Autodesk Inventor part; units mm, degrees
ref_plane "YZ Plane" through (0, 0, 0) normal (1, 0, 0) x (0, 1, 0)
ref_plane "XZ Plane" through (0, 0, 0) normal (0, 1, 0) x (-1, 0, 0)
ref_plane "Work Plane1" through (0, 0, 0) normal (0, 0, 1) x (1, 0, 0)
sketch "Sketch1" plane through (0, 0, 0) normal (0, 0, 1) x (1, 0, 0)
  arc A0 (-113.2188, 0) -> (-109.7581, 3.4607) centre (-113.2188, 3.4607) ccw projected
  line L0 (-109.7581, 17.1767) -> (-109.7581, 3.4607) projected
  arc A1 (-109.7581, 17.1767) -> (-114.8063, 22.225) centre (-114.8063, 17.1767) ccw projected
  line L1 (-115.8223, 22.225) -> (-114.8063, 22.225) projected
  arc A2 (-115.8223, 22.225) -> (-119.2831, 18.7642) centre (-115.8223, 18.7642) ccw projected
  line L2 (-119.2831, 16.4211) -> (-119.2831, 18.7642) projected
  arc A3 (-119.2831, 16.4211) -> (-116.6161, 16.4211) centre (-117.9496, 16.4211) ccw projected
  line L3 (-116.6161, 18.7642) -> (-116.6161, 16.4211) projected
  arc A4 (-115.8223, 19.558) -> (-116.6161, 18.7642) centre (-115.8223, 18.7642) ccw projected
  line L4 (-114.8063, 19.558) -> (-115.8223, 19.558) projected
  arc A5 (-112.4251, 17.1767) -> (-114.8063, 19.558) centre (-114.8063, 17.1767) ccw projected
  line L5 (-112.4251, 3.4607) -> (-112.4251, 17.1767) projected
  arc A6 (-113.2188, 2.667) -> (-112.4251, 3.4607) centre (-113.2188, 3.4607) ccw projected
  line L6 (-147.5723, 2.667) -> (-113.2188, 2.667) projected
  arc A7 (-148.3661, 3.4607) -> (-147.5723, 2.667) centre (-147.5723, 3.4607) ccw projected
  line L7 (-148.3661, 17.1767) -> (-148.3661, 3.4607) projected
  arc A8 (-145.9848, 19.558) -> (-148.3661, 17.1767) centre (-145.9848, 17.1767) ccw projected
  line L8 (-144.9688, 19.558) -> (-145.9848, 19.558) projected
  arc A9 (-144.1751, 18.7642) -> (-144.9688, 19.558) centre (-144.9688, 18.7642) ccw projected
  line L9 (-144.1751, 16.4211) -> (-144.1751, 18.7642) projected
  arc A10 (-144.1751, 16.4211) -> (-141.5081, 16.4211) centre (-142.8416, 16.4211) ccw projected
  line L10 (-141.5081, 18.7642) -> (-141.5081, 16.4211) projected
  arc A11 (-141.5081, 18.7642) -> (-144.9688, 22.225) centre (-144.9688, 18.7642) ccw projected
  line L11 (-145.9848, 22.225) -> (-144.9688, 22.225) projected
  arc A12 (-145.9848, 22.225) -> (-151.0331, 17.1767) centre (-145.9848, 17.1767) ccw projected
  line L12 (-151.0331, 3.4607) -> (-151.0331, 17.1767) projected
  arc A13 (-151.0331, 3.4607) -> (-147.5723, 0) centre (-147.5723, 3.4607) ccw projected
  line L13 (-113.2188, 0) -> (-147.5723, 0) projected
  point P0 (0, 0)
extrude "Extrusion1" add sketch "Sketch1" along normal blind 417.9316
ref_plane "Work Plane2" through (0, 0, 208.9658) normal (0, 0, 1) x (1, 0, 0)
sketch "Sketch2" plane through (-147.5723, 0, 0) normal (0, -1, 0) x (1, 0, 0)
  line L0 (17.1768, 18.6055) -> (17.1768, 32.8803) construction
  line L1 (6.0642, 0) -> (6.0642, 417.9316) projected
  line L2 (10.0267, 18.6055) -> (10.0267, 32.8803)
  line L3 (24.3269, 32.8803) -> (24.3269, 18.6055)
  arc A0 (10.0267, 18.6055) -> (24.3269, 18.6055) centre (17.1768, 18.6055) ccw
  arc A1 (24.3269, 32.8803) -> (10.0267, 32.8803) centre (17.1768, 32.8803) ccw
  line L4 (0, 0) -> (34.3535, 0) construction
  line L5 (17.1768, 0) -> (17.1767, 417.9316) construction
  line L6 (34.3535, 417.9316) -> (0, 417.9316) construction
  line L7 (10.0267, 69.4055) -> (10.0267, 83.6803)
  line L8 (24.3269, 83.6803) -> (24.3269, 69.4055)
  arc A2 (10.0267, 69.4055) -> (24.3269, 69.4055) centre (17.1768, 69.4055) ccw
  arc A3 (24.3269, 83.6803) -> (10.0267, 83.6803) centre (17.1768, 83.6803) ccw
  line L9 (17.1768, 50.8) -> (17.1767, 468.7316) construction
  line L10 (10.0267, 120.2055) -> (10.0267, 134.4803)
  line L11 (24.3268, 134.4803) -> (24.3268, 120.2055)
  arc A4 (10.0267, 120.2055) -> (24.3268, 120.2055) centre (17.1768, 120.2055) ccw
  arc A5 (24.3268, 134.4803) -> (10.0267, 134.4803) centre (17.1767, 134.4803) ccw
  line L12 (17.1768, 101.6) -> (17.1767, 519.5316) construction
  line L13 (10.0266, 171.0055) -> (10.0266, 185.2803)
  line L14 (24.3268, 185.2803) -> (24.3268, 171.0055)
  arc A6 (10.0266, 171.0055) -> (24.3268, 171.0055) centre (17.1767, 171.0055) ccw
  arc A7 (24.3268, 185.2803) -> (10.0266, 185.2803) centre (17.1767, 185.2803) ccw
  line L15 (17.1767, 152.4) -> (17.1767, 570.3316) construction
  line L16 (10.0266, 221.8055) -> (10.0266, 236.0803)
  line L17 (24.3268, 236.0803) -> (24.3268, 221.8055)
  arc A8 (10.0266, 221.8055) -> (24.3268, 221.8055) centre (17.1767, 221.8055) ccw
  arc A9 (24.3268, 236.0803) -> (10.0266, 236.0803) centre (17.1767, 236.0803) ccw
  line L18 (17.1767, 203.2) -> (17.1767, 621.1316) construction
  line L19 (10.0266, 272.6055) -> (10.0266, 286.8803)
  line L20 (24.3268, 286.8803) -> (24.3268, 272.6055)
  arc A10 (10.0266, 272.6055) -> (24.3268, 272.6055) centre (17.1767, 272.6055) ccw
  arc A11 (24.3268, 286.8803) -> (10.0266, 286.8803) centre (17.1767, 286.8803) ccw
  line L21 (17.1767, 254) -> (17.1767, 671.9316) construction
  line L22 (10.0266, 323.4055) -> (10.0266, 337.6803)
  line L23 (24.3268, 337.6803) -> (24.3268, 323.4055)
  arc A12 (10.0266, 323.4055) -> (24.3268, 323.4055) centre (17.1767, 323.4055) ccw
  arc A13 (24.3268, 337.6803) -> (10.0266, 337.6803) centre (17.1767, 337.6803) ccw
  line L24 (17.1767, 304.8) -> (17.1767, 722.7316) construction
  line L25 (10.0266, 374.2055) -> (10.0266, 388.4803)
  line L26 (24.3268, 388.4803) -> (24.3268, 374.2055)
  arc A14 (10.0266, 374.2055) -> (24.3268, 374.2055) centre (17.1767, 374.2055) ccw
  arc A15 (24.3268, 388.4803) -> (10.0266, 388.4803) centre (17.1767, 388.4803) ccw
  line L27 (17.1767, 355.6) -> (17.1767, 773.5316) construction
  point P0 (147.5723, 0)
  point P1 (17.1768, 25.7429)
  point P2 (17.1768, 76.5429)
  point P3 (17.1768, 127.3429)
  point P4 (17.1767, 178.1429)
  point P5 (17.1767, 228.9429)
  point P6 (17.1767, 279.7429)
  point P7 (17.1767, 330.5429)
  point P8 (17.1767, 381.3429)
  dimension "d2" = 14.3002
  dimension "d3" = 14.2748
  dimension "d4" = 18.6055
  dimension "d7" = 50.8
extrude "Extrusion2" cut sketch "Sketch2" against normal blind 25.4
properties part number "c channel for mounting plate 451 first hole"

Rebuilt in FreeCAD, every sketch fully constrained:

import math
import FreeCAD as App
import Part
import Sketcher
Q = App.Units.Quantity

doc = App.newDocument("Part")
body = doc.addObject("PartDesign::Body", "Body")

# Sketch on XY plane
sketch1 = body.newObject("Sketcher::SketchObject", "Sketch")
sketch1.AttachmentSupport = (doc.getObject("XY_Plane"), [""])
sketch1.MapMode = "FlatFace"
sketch1.addGeometry(Part.LineSegment(App.Vector(-147.5723, 0, 0), App.Vector(-113.2188, 0, 0)), False)
sketch1.addGeometry(Part.ArcOfCircle(Part.Circle(App.Vector(-113.2188, 3.4607, 0), App.Vector(0, 0, 1), 3.4607), math.radians(-90), math.radians(0)), False)
sketch1.addGeometry(Part.LineSegment(App.Vector(-109.7581, 3.4607, 0), App.Vector(-109.7581, 17.1767, 0)), False)
sketch1.addGeometry(Part.ArcOfCircle(Part.Circle(App.Vector(-114.8063, 17.1767, 0), App.Vector(0, 0, 1), 5.0482), math.radians(0), math.radians(90)), False)
sketch1.addGeometry(Part.LineSegment(App.Vector(-114.8063, 22.225, 0), App.Vector(-115.8223, 22.225, 0)), False)
sketch1.addGeometry(Part.ArcOfCircle(Part.Circle(App.Vector(-115.8223, 18.7642, 0), App.Vector(0, 0, 1), 3.4608), math.radians(90), math.radians(180)), False)
sketch1.addGeometry(Part.LineSegment(App.Vector(-119.2831, 18.7642, 0), App.Vector(-119.2831, 16.4211, 0)), False)
sketch1.addGeometry(Part.ArcOfCircle(Part.Circle(App.Vector(-117.9496, 16.4211, 0), App.Vector(0, 0, 1), 1.3335), math.radians(180), math.radians(360)), False)
sketch1.addGeometry(Part.LineSegment(App.Vector(-116.6161, 16.4211, 0), App.Vector(-116.6161, 18.7642, 0)), False)
sketch1.addGeometry(Part.ArcOfCircle(Part.Circle(App.Vector(-115.8223, 18.7642, 0), App.Vector(0, 0, 1), 0.7938), math.radians(90), math.radians(180)), False)
sketch1.addGeometry(Part.LineSegment(App.Vector(-115.8223, 19.558, 0), App.Vector(-114.8063, 19.558, 0)), False)
sketch1.addGeometry(Part.ArcOfCircle(Part.Circle(App.Vector(-114.8063, 17.1767, 0), App.Vector(0, 0, 1), 2.3812), math.radians(0), math.radians(90)), False)
sketch1.addGeometry(Part.LineSegment(App.Vector(-112.4251, 17.1767, 0), App.Vector(-112.4251, 3.4607, 0)), False)
sketch1.addGeometry(Part.ArcOfCircle(Part.Circle(App.Vector(-113.2188, 3.4607, 0), App.Vector(0, 0, 1), 0.7937), math.radians(-90), math.radians(0)), False)
sketch1.addGeometry(Part.LineSegment(App.Vector(-113.2188, 2.667, 0), App.Vector(-147.5723, 2.667, 0)), False)
sketch1.addGeometry(Part.ArcOfCircle(Part.Circle(App.Vector(-147.5723, 3.4607, 0), App.Vector(0, 0, 1), 0.7938), math.radians(180), math.radians(270)), False)
sketch1.addGeometry(Part.LineSegment(App.Vector(-148.3661, 3.4607, 0), App.Vector(-148.3661, 17.1767, 0)), False)
sketch1.addGeometry(Part.ArcOfCircle(Part.Circle(App.Vector(-145.9848, 17.1767, 0), App.Vector(0, 0, 1), 2.3813), math.radians(90), math.radians(180)), False)
sketch1.addGeometry(Part.LineSegment(App.Vector(-145.9848, 19.558, 0), App.Vector(-144.9688, 19.558, 0)), False)
sketch1.addGeometry(Part.ArcOfCircle(Part.Circle(App.Vector(-144.9688, 18.7642, 0), App.Vector(0, 0, 1), 0.7937), math.radians(0), math.radians(90)), False)
sketch1.addGeometry(Part.LineSegment(App.Vector(-144.1751, 18.7642, 0), App.Vector(-144.1751, 16.4211, 0)), False)
sketch1.addGeometry(Part.ArcOfCircle(Part.Circle(App.Vector(-142.8416, 16.4211, 0), App.Vector(0, 0, 1), 1.3335), math.radians(180), math.radians(360)), False)
sketch1.addGeometry(Part.LineSegment(App.Vector(-141.5081, 16.4211, 0), App.Vector(-141.5081, 18.7642, 0)), False)
sketch1.addGeometry(Part.ArcOfCircle(Part.Circle(App.Vector(-144.9688, 18.7642, 0), App.Vector(0, 0, 1), 3.4607), math.radians(0), math.radians(90)), False)
sketch1.addGeometry(Part.LineSegment(App.Vector(-144.9688, 22.225, 0), App.Vector(-145.9848, 22.225, 0)), False)
sketch1.addGeometry(Part.ArcOfCircle(Part.Circle(App.Vector(-145.9848, 17.1767, 0), App.Vector(0, 0, 1), 5.0483), math.radians(90), math.radians(180)), False)
sketch1.addGeometry(Part.LineSegment(App.Vector(-151.0331, 17.1767, 0), App.Vector(-151.0331, 3.4607, 0)), False)
sketch1.addGeometry(Part.ArcOfCircle(Part.Circle(App.Vector(-147.5723, 3.4607, 0), App.Vector(0, 0, 1), 3.4608), math.radians(180), math.radians(270)), False)
sketch1.addConstraint(Sketcher.Constraint("Tangent", 0, 2, 1, 1))
sketch1.addConstraint(Sketcher.Constraint("Tangent", 1, 2, 2, 1))
sketch1.addConstraint(Sketcher.Constraint("Tangent", 2, 2, 3, 1))
sketch1.addConstraint(Sketcher.Constraint("Tangent", 3, 2, 4, 1))
sketch1.addConstraint(Sketcher.Constraint("Tangent", 4, 2, 5, 1))
sketch1.addConstraint(Sketcher.Constraint("Tangent", 5, 2, 6, 1))
sketch1.addConstraint(Sketcher.Constraint("Tangent", 6, 2, 7, 1))
sketch1.addConstraint(Sketcher.Constraint("Tangent", 7, 2, 8, 1))
sketch1.addConstraint(Sketcher.Constraint("Tangent", 8, 2, 9, 2))
sketch1.addConstraint(Sketcher.Constraint("Tangent", 9, 1, 10, 1))
sketch1.addConstraint(Sketcher.Constraint("Tangent", 10, 2, 11, 2))
sketch1.addConstraint(Sketcher.Constraint("Tangent", 11, 1, 12, 1))
sketch1.addConstraint(Sketcher.Constraint("Tangent", 12, 2, 13, 2))
sketch1.addConstraint(Sketcher.Constraint("Tangent", 13, 1, 14, 1))
sketch1.addConstraint(Sketcher.Constraint("Tangent", 14, 2, 15, 2))
sketch1.addConstraint(Sketcher.Constraint("Tangent", 15, 1, 16, 1))
sketch1.addConstraint(Sketcher.Constraint("Tangent", 16, 2, 17, 2))
sketch1.addConstraint(Sketcher.Constraint("Tangent", 17, 1, 18, 1))
sketch1.addConstraint(Sketcher.Constraint("Tangent", 18, 2, 19, 2))
sketch1.addConstraint(Sketcher.Constraint("Tangent", 19, 1, 20, 1))
sketch1.addConstraint(Sketcher.Constraint("Tangent", 20, 2, 21, 1))
sketch1.addConstraint(Sketcher.Constraint("Tangent", 21, 2, 22, 1))
sketch1.addConstraint(Sketcher.Constraint("Tangent", 22, 2, 23, 1))
sketch1.addConstraint(Sketcher.Constraint("Tangent", 23, 2, 24, 1))
sketch1.addConstraint(Sketcher.Constraint("Tangent", 24, 2, 25, 1))
sketch1.addConstraint(Sketcher.Constraint("Tangent", 25, 2, 26, 1))
sketch1.addConstraint(Sketcher.Constraint("Tangent", 26, 2, 27, 1))
sketch1.addConstraint(Sketcher.Constraint("Tangent", 27, 2, 0, 1))
sketch1.addConstraint(Sketcher.Constraint("Horizontal", 0))
sketch1.addConstraint(Sketcher.Constraint("Vertical", 2))
sketch1.addConstraint(Sketcher.Constraint("Horizontal", 4))
sketch1.addConstraint(Sketcher.Constraint("Vertical", 6))
sketch1.addConstraint(Sketcher.Constraint("Vertical", 8))
sketch1.addConstraint(Sketcher.Constraint("Horizontal", 10))
sketch1.addConstraint(Sketcher.Constraint("Vertical", 12))
sketch1.addConstraint(Sketcher.Constraint("Horizontal", 14))
sketch1.addConstraint(Sketcher.Constraint("Vertical", 16))
sketch1.addConstraint(Sketcher.Constraint("Horizontal", 18))
sketch1.addConstraint(Sketcher.Constraint("Vertical", 20))
sketch1.addConstraint(Sketcher.Constraint("Vertical", 22))
sketch1.addConstraint(Sketcher.Constraint("Horizontal", 24))
sketch1.addConstraint(Sketcher.Constraint("Vertical", 26))
sketch1.addConstraint(Sketcher.Constraint("Coincident", 9, 3, 5, 3))
sketch1.addConstraint(Sketcher.Constraint("Coincident", 11, 3, 3, 3))
sketch1.addConstraint(Sketcher.Constraint("Coincident", 13, 3, 1, 3))
sketch1.addConstraint(Sketcher.Constraint("Coincident", 23, 3, 19, 3))
sketch1.addConstraint(Sketcher.Constraint("Coincident", 25, 3, 17, 3))
sketch1.addConstraint(Sketcher.Constraint("Coincident", 27, 3, 15, 3))
sketch1.addConstraint(Sketcher.Constraint("Equal", 1, 5))
sketch1.addConstraint(Sketcher.Constraint("Equal", 13, 15))
sketch1.addConstraint(Sketcher.Constraint("Equal", 11, 17))
sketch1.addConstraint(Sketcher.Constraint("Equal", 15, 19))
sketch1.addConstraint(Sketcher.Constraint("PointOnObject", 0, 2, -1))
sketch1.addConstraint(Sketcher.Constraint("Horizontal", 11, 3, 17, 3))
sketch1.addConstraint(Sketcher.Constraint("Horizontal", 7, 3, 21, 3))
sketch1.addConstraint(Sketcher.Constraint("Equal", 10, 18))
sketch1.addConstraint(Sketcher.Constraint("Radius", 9, Q("0.031252 in")))
sketch1.addConstraint(Sketcher.Constraint("Radius", 11, Q("0.093748 in")))
sketch1.addConstraint(Sketcher.Constraint("DistanceX", 4, 2, 4, 1, Q("0.04 in")))
sketch1.addConstraint(Sketcher.Constraint("DistanceY", 2, 1, 2, 2, Q("0.54 in")))
sketch1.addConstraint(Sketcher.Constraint("Radius", 7, Q("0.0525 in")))
sketch1.addConstraint(Sketcher.Constraint("DistanceX", 15, 3, 5, 3, Q("1.25 in")))
sketch1.addConstraint(Sketcher.Constraint("DistanceY", 6, 2, 6, 1, Q("2.343 mm")))
sketch1.addConstraint(Sketcher.Constraint("DistanceX", 1, 3, -1, 1, Q("113.2188 mm")))
pad1 = body.newObject("PartDesign::Pad", "Pad")
pad1.Profile = sketch1
pad1.Length = Q("16.454 in")

# Sketch on XZ plane
sketch2 = body.newObject("Sketcher::SketchObject", "Sketch001")
sketch2.AttachmentSupport = (doc.getObject("XZ_Plane"), [""])
sketch2.MapMode = "FlatFace"
sketch2.addGeometry(Part.LineSegment(App.Vector(-137.5456, 32.8803, 0), App.Vector(-137.5456, 18.6055, 0)), False)
sketch2.addGeometry(Part.ArcOfCircle(Part.Circle(App.Vector(-130.3955, 18.6055, 0), App.Vector(0, 0, 1), 7.1501), math.radians(180), math.radians(360)), False)
sketch2.addGeometry(Part.LineSegment(App.Vector(-123.2454, 18.6055, 0), App.Vector(-123.2454, 32.8803, 0)), False)
sketch2.addGeometry(Part.ArcOfCircle(Part.Circle(App.Vector(-130.3955, 32.8803, 0), App.Vector(0, 0, 1), 7.1501), math.radians(0), math.radians(180)), False)
sketch2.addGeometry(Part.LineSegment(App.Vector(-137.5456, 83.6803, 0), App.Vector(-137.5456, 69.4055, 0)), False)
sketch2.addGeometry(Part.ArcOfCircle(Part.Circle(App.Vector(-130.3955, 69.4055, 0), App.Vector(0, 0, 1), 7.1501), math.radians(180), math.radians(360)), False)
sketch2.addGeometry(Part.LineSegment(App.Vector(-123.2454, 69.4055, 0), App.Vector(-123.2454, 83.6803, 0)), False)
sketch2.addGeometry(Part.ArcOfCircle(Part.Circle(App.Vector(-130.3955, 83.6803, 0), App.Vector(0, 0, 1), 7.1501), math.radians(0), math.radians(180)), False)
sketch2.addGeometry(Part.LineSegment(App.Vector(-137.5456, 134.4803, 0), App.Vector(-137.5456, 120.2055, 0)), False)
sketch2.addGeometry(Part.ArcOfCircle(Part.Circle(App.Vector(-130.3955, 120.2055, 0), App.Vector(0, 0, 1), 7.1501), math.radians(180), math.radians(360)), False)
sketch2.addGeometry(Part.LineSegment(App.Vector(-123.2455, 120.2055, 0), App.Vector(-123.2455, 134.4803, 0)), False)
sketch2.addGeometry(Part.ArcOfCircle(Part.Circle(App.Vector(-130.3956, 134.4803, 0), App.Vector(0, 0, 1), 7.1501), math.radians(0), math.radians(180)), False)
sketch2.addGeometry(Part.LineSegment(App.Vector(-137.5457, 185.2803, 0), App.Vector(-137.5457, 171.0055, 0)), False)
sketch2.addGeometry(Part.ArcOfCircle(Part.Circle(App.Vector(-130.3956, 171.0055, 0), App.Vector(0, 0, 1), 7.1501), math.radians(180), math.radians(360)), False)
sketch2.addGeometry(Part.LineSegment(App.Vector(-123.2455, 171.0055, 0), App.Vector(-123.2455, 185.2803, 0)), False)
sketch2.addGeometry(Part.ArcOfCircle(Part.Circle(App.Vector(-130.3956, 185.2803, 0), App.Vector(0, 0, 1), 7.1501), math.radians(0), math.radians(180)), False)
sketch2.addGeometry(Part.LineSegment(App.Vector(-137.5457, 236.0803, 0), App.Vector(-137.5457, 221.8055, 0)), False)
sketch2.addGeometry(Part.ArcOfCircle(Part.Circle(App.Vector(-130.3956, 221.8055, 0), App.Vector(0, 0, 1), 7.1501), math.radians(180), math.radians(360)), False)
sketch2.addGeometry(Part.LineSegment(App.Vector(-123.2455, 221.8055, 0), App.Vector(-123.2455, 236.0803, 0)), False)
sketch2.addGeometry(Part.ArcOfCircle(Part.Circle(App.Vector(-130.3956, 236.0803, 0), App.Vector(0, 0, 1), 7.1501), math.radians(0), math.radians(180)), False)
sketch2.addGeometry(Part.LineSegment(App.Vector(-137.5457, 286.8803, 0), App.Vector(-137.5457, 272.6055, 0)), False)
sketch2.addGeometry(Part.ArcOfCircle(Part.Circle(App.Vector(-130.3956, 272.6055, 0), App.Vector(0, 0, 1), 7.1501), math.radians(180), math.radians(360)), False)
sketch2.addGeometry(Part.LineSegment(App.Vector(-123.2455, 272.6055, 0), App.Vector(-123.2455, 286.8803, 0)), False)
sketch2.addGeometry(Part.ArcOfCircle(Part.Circle(App.Vector(-130.3956, 286.8803, 0), App.Vector(0, 0, 1), 7.1501), math.radians(0), math.radians(180)), False)
sketch2.addGeometry(Part.LineSegment(App.Vector(-137.5457, 337.6803, 0), App.Vector(-137.5457, 323.4055, 0)), False)
sketch2.addGeometry(Part.ArcOfCircle(Part.Circle(App.Vector(-130.3956, 323.4055, 0), App.Vector(0, 0, 1), 7.1501), math.radians(180), math.radians(360)), False)
sketch2.addGeometry(Part.LineSegment(App.Vector(-123.2455, 323.4055, 0), App.Vector(-123.2455, 337.6803, 0)), False)
sketch2.addGeometry(Part.ArcOfCircle(Part.Circle(App.Vector(-130.3956, 337.6803, 0), App.Vector(0, 0, 1), 7.1501), math.radians(0), math.radians(180)), False)
sketch2.addGeometry(Part.LineSegment(App.Vector(-137.5457, 388.4803, 0), App.Vector(-137.5457, 374.2055, 0)), False)
sketch2.addGeometry(Part.ArcOfCircle(Part.Circle(App.Vector(-130.3956, 374.2055, 0), App.Vector(0, 0, 1), 7.1501), math.radians(180), math.radians(360)), False)
sketch2.addGeometry(Part.LineSegment(App.Vector(-123.2455, 374.2055, 0), App.Vector(-123.2455, 388.4803, 0)), False)
sketch2.addGeometry(Part.ArcOfCircle(Part.Circle(App.Vector(-130.3956, 388.4803, 0), App.Vector(0, 0, 1), 7.1501), math.radians(0), math.radians(180)), False)
sketch2.addConstraint(Sketcher.Constraint("Tangent", 0, 2, 1, 1))
sketch2.addConstraint(Sketcher.Constraint("Tangent", 1, 2, 2, 1))
sketch2.addConstraint(Sketcher.Constraint("Tangent", 2, 2, 3, 1))
sketch2.addConstraint(Sketcher.Constraint("Tangent", 3, 2, 0, 1))
sketch2.addConstraint(Sketcher.Constraint("Tangent", 4, 2, 5, 1))
sketch2.addConstraint(Sketcher.Constraint("Tangent", 5, 2, 6, 1))
sketch2.addConstraint(Sketcher.Constraint("Tangent", 6, 2, 7, 1))
sketch2.addConstraint(Sketcher.Constraint("Tangent", 7, 2, 4, 1))
sketch2.addConstraint(Sketcher.Constraint("Tangent", 8, 2, 9, 1))
sketch2.addConstraint(Sketcher.Constraint("Tangent", 9, 2, 10, 1))
sketch2.addConstraint(Sketcher.Constraint("Tangent", 10, 2, 11, 1))
sketch2.addConstraint(Sketcher.Constraint("Tangent", 11, 2, 8, 1))
sketch2.addConstraint(Sketcher.Constraint("Tangent", 12, 2, 13, 1))
sketch2.addConstraint(Sketcher.Constraint("Tangent", 13, 2, 14, 1))
sketch2.addConstraint(Sketcher.Constraint("Tangent", 14, 2, 15, 1))
sketch2.addConstraint(Sketcher.Constraint("Tangent", 15, 2, 12, 1))
sketch2.addConstraint(Sketcher.Constraint("Tangent", 16, 2, 17, 1))
sketch2.addConstraint(Sketcher.Constraint("Tangent", 17, 2, 18, 1))
sketch2.addConstraint(Sketcher.Constraint("Tangent", 18, 2, 19, 1))
sketch2.addConstraint(Sketcher.Constraint("Tangent", 19, 2, 16, 1))
sketch2.addConstraint(Sketcher.Constraint("Tangent", 20, 2, 21, 1))
sketch2.addConstraint(Sketcher.Constraint("Tangent", 21, 2, 22, 1))
sketch2.addConstraint(Sketcher.Constraint("Tangent", 22, 2, 23, 1))
sketch2.addConstraint(Sketcher.Constraint("Tangent", 23, 2, 20, 1))
sketch2.addConstraint(Sketcher.Constraint("Tangent", 24, 2, 25, 1))
sketch2.addConstraint(Sketcher.Constraint("Tangent", 25, 2, 26, 1))
sketch2.addConstraint(Sketcher.Constraint("Tangent", 26, 2, 27, 1))
sketch2.addConstraint(Sketcher.Constraint("Tangent", 27, 2, 24, 1))
sketch2.addConstraint(Sketcher.Constraint("Tangent", 28, 2, 29, 1))
sketch2.addConstraint(Sketcher.Constraint("Tangent", 29, 2, 30, 1))
sketch2.addConstraint(Sketcher.Constraint("Tangent", 30, 2, 31, 1))
sketch2.addConstraint(Sketcher.Constraint("Tangent", 31, 2, 28, 1))
sketch2.addConstraint(Sketcher.Constraint("Vertical", 0))
sketch2.addConstraint(Sketcher.Constraint("Vertical", 2))
sketch2.addConstraint(Sketcher.Constraint("Vertical", 4))
sketch2.addConstraint(Sketcher.Constraint("Vertical", 6))
sketch2.addConstraint(Sketcher.Constraint("Vertical", 8))
sketch2.addConstraint(Sketcher.Constraint("Vertical", 10))
sketch2.addConstraint(Sketcher.Constraint("Vertical", 12))
sketch2.addConstraint(Sketcher.Constraint("Vertical", 14))
sketch2.addConstraint(Sketcher.Constraint("Vertical", 16))
sketch2.addConstraint(Sketcher.Constraint("Vertical", 18))
sketch2.addConstraint(Sketcher.Constraint("Vertical", 20))
sketch2.addConstraint(Sketcher.Constraint("Vertical", 22))
sketch2.addConstraint(Sketcher.Constraint("Vertical", 24))
sketch2.addConstraint(Sketcher.Constraint("Vertical", 26))
sketch2.addConstraint(Sketcher.Constraint("Vertical", 28))
sketch2.addConstraint(Sketcher.Constraint("Vertical", 30))
sketch2.addConstraint(Sketcher.Constraint("Equal", 3, 5))
sketch2.addConstraint(Sketcher.Constraint("Equal", 7, 9))
sketch2.addConstraint(Sketcher.Constraint("Equal", 11, 13))
sketch2.addConstraint(Sketcher.Constraint("Equal", 15, 17))
sketch2.addConstraint(Sketcher.Constraint("Equal", 19, 21))
sketch2.addConstraint(Sketcher.Constraint("Equal", 23, 25))
sketch2.addConstraint(Sketcher.Constraint("Equal", 27, 29))
sketch2.addConstraint(Sketcher.Constraint("Vertical", 3, 3, 5, 3))
sketch2.addConstraint(Sketcher.Constraint("Vertical", 7, 3, 9, 3))
sketch2.addConstraint(Sketcher.Constraint("Vertical", 11, 3, 13, 3))
sketch2.addConstraint(Sketcher.Constraint("Vertical", 15, 3, 17, 3))
sketch2.addConstraint(Sketcher.Constraint("Vertical", 19, 3, 21, 3))
sketch2.addConstraint(Sketcher.Constraint("Vertical", 23, 3, 25, 3))
sketch2.addConstraint(Sketcher.Constraint("Vertical", 27, 3, 29, 3))
sketch2.addConstraint(Sketcher.Constraint("Equal", 2, 4))
sketch2.addConstraint(Sketcher.Constraint("Equal", 6, 8))
sketch2.addConstraint(Sketcher.Constraint("Equal", 10, 12))
sketch2.addConstraint(Sketcher.Constraint("Equal", 14, 16))
sketch2.addConstraint(Sketcher.Constraint("Equal", 18, 20))
sketch2.addConstraint(Sketcher.Constraint("Equal", 22, 24))
sketch2.addConstraint(Sketcher.Constraint("Equal", 26, 28))
sketch2.addConstraint(Sketcher.Constraint("DistanceY", 1, 3, 5, 3, Q("2 in")))
sketch2.addConstraint(Sketcher.Constraint("DistanceY", 5, 3, 9, 3, Q("2 in")))
sketch2.addConstraint(Sketcher.Constraint("DistanceY", 9, 3, 13, 3, Q("2 in")))
sketch2.addConstraint(Sketcher.Constraint("DistanceY", 13, 3, 17, 3, Q("2 in")))
sketch2.addConstraint(Sketcher.Constraint("DistanceY", 17, 3, 21, 3, Q("2 in")))
sketch2.addConstraint(Sketcher.Constraint("DistanceY", 21, 3, 25, 3, Q("2 in")))
sketch2.addConstraint(Sketcher.Constraint("DistanceY", 25, 3, 29, 3, Q("2 in")))
sketch2.addConstraint(Sketcher.Constraint("Radius", 1, Q("0.2815 in")))
sketch2.addConstraint(Sketcher.Constraint("DistanceY", 0, 2, 0, 1, Q("0.562 in")))
sketch2.addConstraint(Sketcher.Constraint("DistanceY", -1, 1, 1, 3, Q("0.7325 in")))
sketch2.addConstraint(Sketcher.Constraint("DistanceX", 1, 3, -1, 1, Q("130.3955 mm")))
pocket1 = body.newObject("PartDesign::Pocket", "Pocket")
pocket1.Profile = sketch2
pocket1.Length = Q("1 in")

doc.recompute()
